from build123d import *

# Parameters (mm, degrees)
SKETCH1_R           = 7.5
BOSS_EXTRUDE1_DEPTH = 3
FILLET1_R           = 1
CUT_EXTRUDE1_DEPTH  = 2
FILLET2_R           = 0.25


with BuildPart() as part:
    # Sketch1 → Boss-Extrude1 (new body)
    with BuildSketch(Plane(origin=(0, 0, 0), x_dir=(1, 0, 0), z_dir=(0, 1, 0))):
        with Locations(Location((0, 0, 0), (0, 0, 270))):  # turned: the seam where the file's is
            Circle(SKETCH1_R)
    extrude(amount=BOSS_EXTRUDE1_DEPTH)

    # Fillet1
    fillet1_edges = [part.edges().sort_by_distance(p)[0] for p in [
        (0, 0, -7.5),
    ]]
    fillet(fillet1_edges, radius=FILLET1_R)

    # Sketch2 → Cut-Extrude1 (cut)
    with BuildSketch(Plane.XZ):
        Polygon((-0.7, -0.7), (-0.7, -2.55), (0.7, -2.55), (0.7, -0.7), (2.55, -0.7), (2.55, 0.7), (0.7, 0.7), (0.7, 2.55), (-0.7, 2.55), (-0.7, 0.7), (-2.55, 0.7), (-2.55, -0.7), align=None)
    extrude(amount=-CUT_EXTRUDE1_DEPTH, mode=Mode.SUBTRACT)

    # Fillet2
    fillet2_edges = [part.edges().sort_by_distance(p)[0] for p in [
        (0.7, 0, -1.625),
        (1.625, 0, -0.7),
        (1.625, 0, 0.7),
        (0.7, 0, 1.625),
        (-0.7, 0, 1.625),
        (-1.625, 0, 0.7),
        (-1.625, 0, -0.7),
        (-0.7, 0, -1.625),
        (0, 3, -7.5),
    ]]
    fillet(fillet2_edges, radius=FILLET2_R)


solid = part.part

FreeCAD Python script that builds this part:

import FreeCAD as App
import Part
import Sketcher
Q = App.Units.Quantity


def edges_at(feature, points):
    """Names of the edges that pass closest to the given points."""
    edges = feature.Shape.Edges
    near = lambda p: min(range(len(edges)), key=lambda i: edges[i].distToShape(Part.Vertex(*p))[0])
    return sorted({f"Edge{near(p) + 1}" for p in points})


def add_polygon(sketch, points):
    """Adds a closed chain of lines whose ends are joined by coincident constraints."""
    first, n = sketch.GeometryCount, len(points)
    for a, b in zip(points, points[1:] + points[:1]):
        sketch.addGeometry(Part.LineSegment(App.Vector(*a, 0), App.Vector(*b, 0)), False)
    for i in range(n):
        sketch.addConstraint(Sketcher.Constraint("Coincident", first + i, 2, first + (i + 1) % n, 1))

doc = App.newDocument("Part")
body = doc.addObject("PartDesign::Body", "Body")

# Sketch on XZ plane
sketch1 = body.newObject("Sketcher::SketchObject", "Sketch")
sketch1.AttachmentSupport = (doc.getObject("XZ_Plane"), [""])
sketch1.MapMode = "FlatFace"
sketch1.addGeometry(Part.Circle(App.Vector(0, 0, 0), App.Vector(0, 0, 1), 8), False)
sketch1.addConstraint([
    Sketcher.Constraint("Coincident", 0, 3, -1, 1),
    Sketcher.Constraint("Diameter", 0, Q("15 mm")),
])
pad1 = body.newObject("PartDesign::Pad", "Pad")
pad1.Profile = sketch1
pad1.Length = 3
pad1.Reversed = True
doc.recompute()

fillet = body.newObject("PartDesign::Fillet", "Fillet")
fillet.Base = (pad1, edges_at(pad1, [(0, 0, -7.5)]))
fillet.Radius = 1

# Sketch on XZ plane
sketch2 = body.newObject("Sketcher::SketchObject", "Sketch001")
sketch2.AttachmentSupport = (doc.getObject("XZ_Plane"), [""])
sketch2.MapMode = "FlatFace"
add_polygon(sketch2, [(-0.7, -0.7), (-0.7, -2.5), (0.7, -2.5), (0.7, -0.7), (2.5, -0.7), (2.5, 0.7), (0.7, 0.7), (0.7, 2.5), (-0.7, 2.5), (-0.7, 0.7), (-2.5, 0.7), (-2.5, -0.7)])  # lines 0-11
sketch2.addConstraint([
    Sketcher.Constraint("Vertical", 0),
    Sketcher.Constraint("Horizontal", 1),
    Sketcher.Constraint("Vertical", 2),
    Sketcher.Constraint("Horizontal", 3),
    Sketcher.Constraint("Vertical", 4),
    Sketcher.Constraint("Horizontal", 5),
    Sketcher.Constraint("Vertical", 6),
    Sketcher.Constraint("Horizontal", 7),
    Sketcher.Constraint("Vertical", 8),
    Sketcher.Constraint("Horizontal", 9),
    Sketcher.Constraint("Vertical", 10),
    Sketcher.Constraint("Horizontal", 11),
    Sketcher.Constraint("Symmetric", 0, 2, 6, 2, -1, 1),
    Sketcher.Constraint("Symmetric", 2, 2, 8, 2, -1, 1),
    Sketcher.Constraint("Symmetric", 4, 2, 10, 2, -1, 1),
    Sketcher.Constraint("Symmetric", 5, 2, 8, 2, -2),
    Sketcher.Constraint("Equal", 11, 0),
    Sketcher.Constraint("Equal", 7, 4),
    Sketcher.Constraint("DistanceX", 1, 1, 1, 2, Q("1.4 mm")),
    Sketcher.Constraint("DistanceX", 3, 1, 3, 2, Q("1.85 mm")),
])
pocket1 = body.newObject("PartDesign::Pocket", "Pocket")
pocket1.Profile = sketch2
pocket1.Length = 2
doc.recompute()

fillet2 = body.newObject("PartDesign::Fillet", "Fillet001")
fillet2.Base = (pocket1, edges_at(pocket1, [
    (0.7, 0, -1.625),
    (1.625, 0, -0.7),
    (1.625, 0, 0.7),
    (0.7, 0, 1.625),
    (-0.7, 0, 1.625),
    (-1.625, 0, 0.7),
    (-1.625, 0, -0.7),
    (-0.7, 0, -1.625),
    (0, 3, -7.5),
]))
fillet2.Radius = 0.25

doc.recompute()
